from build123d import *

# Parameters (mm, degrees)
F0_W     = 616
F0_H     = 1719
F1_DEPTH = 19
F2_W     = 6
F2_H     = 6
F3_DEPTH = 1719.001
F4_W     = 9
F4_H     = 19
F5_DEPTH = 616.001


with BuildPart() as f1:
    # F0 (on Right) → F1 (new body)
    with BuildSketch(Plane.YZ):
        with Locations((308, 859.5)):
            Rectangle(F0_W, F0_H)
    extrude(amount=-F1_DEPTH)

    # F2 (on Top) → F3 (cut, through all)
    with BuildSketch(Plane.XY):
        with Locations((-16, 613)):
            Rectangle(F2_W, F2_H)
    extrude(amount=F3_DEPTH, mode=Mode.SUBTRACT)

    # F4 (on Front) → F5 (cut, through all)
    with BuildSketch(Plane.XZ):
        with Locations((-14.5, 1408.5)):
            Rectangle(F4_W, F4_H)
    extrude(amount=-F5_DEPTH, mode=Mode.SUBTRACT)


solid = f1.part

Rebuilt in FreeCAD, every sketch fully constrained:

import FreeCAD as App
import Part
import Sketcher
from FreeCAD import Vector


def add_polygon(sketch, points):
    """Adds a closed chain of lines whose ends are joined by coincident constraints."""
    first, n = sketch.GeometryCount, len(points)
    for a, b in zip(points, points[1:] + points[:1]):
        sketch.addGeometry(Part.LineSegment(App.Vector(*a, 0), App.Vector(*b, 0)), False)
    for i in range(n):
        sketch.addConstraint(Sketcher.Constraint("Coincident", first + i, 2, first + (i + 1) % n, 1))

doc = App.newDocument("Part")
body = doc.addObject("PartDesign::Body", "Body")

sketch1 = doc.addObject("Sketcher::SketchObject", "Sketch")
body.addObject(sketch1)
sketch1.AttachmentSupport = (doc.YZ_Plane, [""])
sketch1.MapMode = "FlatFace"
add_polygon(sketch1, [(0, 1719), (0, 0), (616, 0), (616, 1719)])
sketch1.addConstraint(Sketcher.Constraint("Vertical", 0))
sketch1.addConstraint(Sketcher.Constraint("Horizontal", 1))
sketch1.addConstraint(Sketcher.Constraint("Vertical", 2))
sketch1.addConstraint(Sketcher.Constraint("Horizontal", 3))
sketch1.addConstraint(Sketcher.Constraint("Coincident", 0, 2, -1, 1))
sketch1.addConstraint(Sketcher.Constraint("DistanceX", 1, 1, 1, 2, 616.0))
sketch1.addConstraint(Sketcher.Constraint("DistanceY", 0, 2, 0, 1, 1719.0))
pad1 = doc.addObject("PartDesign::Pad", "Pad")
body.addObject(pad1)
pad1.Profile = sketch1
pad1.Length = 19
pad1.Reversed = True

sketch2 = doc.addObject("Sketcher::SketchObject", "Sketch001")
body.addObject(sketch2)
sketch2.AttachmentSupport = (doc.XY_Plane, [""])
sketch2.MapMode = "FlatFace"
add_polygon(sketch2, [(-19, 616), (-19, 610), (-13, 610), (-13, 616)])
sketch2.addConstraint(Sketcher.Constraint("Vertical", 0))
sketch2.addConstraint(Sketcher.Constraint("Horizontal", 1))
sketch2.addConstraint(Sketcher.Constraint("Vertical", 2))
sketch2.addConstraint(Sketcher.Constraint("Horizontal", 3))
sketch2.addConstraint(Sketcher.Constraint("Equal", 3, 0))
sketch2.addConstraint(Sketcher.Constraint("DistanceX", 1, 1, 1, 2, 6.0))
sketch2.addConstraint(Sketcher.Constraint("DistanceX", 0, 2, -1, 1, 19.0))
sketch2.addConstraint(Sketcher.Constraint("DistanceY", -1, 1, 0, 2, 610.0))
pocket1 = doc.addObject("PartDesign::Pocket", "Pocket")
body.addObject(pocket1)
pocket1.Profile = sketch2
pocket1.Type = "ThroughAll"
pocket1.Reversed = True

sketch3 = doc.addObject("Sketcher::SketchObject", "Sketch002")
body.addObject(sketch3)
sketch3.AttachmentSupport = (doc.XZ_Plane, [""])
sketch3.MapMode = "FlatFace"
add_polygon(sketch3, [(-19, 1418), (-19, 1399), (-10, 1399), (-10, 1418)])
sketch3.addConstraint(Sketcher.Constraint("Vertical", 0))
sketch3.addConstraint(Sketcher.Constraint("Horizontal", 1))
sketch3.addConstraint(Sketcher.Constraint("Vertical", 2))
sketch3.addConstraint(Sketcher.Constraint("Horizontal", 3))
sketch3.addConstraint(Sketcher.Constraint("DistanceX", 1, 1, 1, 2, 9.0))
sketch3.addConstraint(Sketcher.Constraint("DistanceY", 0, 2, 0, 1, 19.0))
sketch3.addConstraint(Sketcher.Constraint("DistanceX", 0, 2, -1, 1, 19.0))
sketch3.addConstraint(Sketcher.Constraint("DistanceY", -1, 1, 0, 2, 1399.0))
pocket2 = doc.addObject("PartDesign::Pocket", "Pocket001")
body.addObject(pocket2)
pocket2.Profile = sketch3
pocket2.Type = "ThroughAll"

doc.recompute()
